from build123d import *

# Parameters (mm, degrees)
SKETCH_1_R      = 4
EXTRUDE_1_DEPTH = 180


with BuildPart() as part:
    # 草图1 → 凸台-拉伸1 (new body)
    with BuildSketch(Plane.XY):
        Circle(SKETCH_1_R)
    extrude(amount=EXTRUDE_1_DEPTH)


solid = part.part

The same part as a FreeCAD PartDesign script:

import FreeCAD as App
import Part
import Sketcher
from FreeCAD import Vector
Q = App.Units.Quantity

doc = App.newDocument("Part")
params = doc.addObject("Spreadsheet::Sheet", "Params")
for row, (alias, value) in enumerate([
    ("sketch1_diameter", "8 mm"),
    ("pad1_length", "180 mm"),
], start=1):
    params.set(f"A{row}", alias)
    params.set(f"B{row}", "=" + value)
    params.setAlias(f"B{row}", alias)

body = doc.addObject("PartDesign::Body", "Body")

# Sketch on XY plane
sketch1 = body.newObject("Sketcher::SketchObject", "Sketch")
sketch1.AttachmentSupport = (doc.getObject("XY_Plane"), [""])
sketch1.MapMode = "FlatFace"
sketch1.addGeometry(Part.Circle(Vector(0, 0, 0), Vector(0, 0, 1), 4), False)
sketch1.addConstraint(Sketcher.Constraint("Coincident", 0, 3, -1, 1))
sketch1.addConstraint(Sketcher.Constraint("Diameter", 0, Q("8 mm")))
sketch1.setExpression("Constraints[1]", "Params.sketch1_diameter")
pad1 = body.newObject("PartDesign::Pad", "Pad")
pad1.Profile = sketch1
pad1.setExpression("Length", "Params.pad1_length")

doc.recompute()
